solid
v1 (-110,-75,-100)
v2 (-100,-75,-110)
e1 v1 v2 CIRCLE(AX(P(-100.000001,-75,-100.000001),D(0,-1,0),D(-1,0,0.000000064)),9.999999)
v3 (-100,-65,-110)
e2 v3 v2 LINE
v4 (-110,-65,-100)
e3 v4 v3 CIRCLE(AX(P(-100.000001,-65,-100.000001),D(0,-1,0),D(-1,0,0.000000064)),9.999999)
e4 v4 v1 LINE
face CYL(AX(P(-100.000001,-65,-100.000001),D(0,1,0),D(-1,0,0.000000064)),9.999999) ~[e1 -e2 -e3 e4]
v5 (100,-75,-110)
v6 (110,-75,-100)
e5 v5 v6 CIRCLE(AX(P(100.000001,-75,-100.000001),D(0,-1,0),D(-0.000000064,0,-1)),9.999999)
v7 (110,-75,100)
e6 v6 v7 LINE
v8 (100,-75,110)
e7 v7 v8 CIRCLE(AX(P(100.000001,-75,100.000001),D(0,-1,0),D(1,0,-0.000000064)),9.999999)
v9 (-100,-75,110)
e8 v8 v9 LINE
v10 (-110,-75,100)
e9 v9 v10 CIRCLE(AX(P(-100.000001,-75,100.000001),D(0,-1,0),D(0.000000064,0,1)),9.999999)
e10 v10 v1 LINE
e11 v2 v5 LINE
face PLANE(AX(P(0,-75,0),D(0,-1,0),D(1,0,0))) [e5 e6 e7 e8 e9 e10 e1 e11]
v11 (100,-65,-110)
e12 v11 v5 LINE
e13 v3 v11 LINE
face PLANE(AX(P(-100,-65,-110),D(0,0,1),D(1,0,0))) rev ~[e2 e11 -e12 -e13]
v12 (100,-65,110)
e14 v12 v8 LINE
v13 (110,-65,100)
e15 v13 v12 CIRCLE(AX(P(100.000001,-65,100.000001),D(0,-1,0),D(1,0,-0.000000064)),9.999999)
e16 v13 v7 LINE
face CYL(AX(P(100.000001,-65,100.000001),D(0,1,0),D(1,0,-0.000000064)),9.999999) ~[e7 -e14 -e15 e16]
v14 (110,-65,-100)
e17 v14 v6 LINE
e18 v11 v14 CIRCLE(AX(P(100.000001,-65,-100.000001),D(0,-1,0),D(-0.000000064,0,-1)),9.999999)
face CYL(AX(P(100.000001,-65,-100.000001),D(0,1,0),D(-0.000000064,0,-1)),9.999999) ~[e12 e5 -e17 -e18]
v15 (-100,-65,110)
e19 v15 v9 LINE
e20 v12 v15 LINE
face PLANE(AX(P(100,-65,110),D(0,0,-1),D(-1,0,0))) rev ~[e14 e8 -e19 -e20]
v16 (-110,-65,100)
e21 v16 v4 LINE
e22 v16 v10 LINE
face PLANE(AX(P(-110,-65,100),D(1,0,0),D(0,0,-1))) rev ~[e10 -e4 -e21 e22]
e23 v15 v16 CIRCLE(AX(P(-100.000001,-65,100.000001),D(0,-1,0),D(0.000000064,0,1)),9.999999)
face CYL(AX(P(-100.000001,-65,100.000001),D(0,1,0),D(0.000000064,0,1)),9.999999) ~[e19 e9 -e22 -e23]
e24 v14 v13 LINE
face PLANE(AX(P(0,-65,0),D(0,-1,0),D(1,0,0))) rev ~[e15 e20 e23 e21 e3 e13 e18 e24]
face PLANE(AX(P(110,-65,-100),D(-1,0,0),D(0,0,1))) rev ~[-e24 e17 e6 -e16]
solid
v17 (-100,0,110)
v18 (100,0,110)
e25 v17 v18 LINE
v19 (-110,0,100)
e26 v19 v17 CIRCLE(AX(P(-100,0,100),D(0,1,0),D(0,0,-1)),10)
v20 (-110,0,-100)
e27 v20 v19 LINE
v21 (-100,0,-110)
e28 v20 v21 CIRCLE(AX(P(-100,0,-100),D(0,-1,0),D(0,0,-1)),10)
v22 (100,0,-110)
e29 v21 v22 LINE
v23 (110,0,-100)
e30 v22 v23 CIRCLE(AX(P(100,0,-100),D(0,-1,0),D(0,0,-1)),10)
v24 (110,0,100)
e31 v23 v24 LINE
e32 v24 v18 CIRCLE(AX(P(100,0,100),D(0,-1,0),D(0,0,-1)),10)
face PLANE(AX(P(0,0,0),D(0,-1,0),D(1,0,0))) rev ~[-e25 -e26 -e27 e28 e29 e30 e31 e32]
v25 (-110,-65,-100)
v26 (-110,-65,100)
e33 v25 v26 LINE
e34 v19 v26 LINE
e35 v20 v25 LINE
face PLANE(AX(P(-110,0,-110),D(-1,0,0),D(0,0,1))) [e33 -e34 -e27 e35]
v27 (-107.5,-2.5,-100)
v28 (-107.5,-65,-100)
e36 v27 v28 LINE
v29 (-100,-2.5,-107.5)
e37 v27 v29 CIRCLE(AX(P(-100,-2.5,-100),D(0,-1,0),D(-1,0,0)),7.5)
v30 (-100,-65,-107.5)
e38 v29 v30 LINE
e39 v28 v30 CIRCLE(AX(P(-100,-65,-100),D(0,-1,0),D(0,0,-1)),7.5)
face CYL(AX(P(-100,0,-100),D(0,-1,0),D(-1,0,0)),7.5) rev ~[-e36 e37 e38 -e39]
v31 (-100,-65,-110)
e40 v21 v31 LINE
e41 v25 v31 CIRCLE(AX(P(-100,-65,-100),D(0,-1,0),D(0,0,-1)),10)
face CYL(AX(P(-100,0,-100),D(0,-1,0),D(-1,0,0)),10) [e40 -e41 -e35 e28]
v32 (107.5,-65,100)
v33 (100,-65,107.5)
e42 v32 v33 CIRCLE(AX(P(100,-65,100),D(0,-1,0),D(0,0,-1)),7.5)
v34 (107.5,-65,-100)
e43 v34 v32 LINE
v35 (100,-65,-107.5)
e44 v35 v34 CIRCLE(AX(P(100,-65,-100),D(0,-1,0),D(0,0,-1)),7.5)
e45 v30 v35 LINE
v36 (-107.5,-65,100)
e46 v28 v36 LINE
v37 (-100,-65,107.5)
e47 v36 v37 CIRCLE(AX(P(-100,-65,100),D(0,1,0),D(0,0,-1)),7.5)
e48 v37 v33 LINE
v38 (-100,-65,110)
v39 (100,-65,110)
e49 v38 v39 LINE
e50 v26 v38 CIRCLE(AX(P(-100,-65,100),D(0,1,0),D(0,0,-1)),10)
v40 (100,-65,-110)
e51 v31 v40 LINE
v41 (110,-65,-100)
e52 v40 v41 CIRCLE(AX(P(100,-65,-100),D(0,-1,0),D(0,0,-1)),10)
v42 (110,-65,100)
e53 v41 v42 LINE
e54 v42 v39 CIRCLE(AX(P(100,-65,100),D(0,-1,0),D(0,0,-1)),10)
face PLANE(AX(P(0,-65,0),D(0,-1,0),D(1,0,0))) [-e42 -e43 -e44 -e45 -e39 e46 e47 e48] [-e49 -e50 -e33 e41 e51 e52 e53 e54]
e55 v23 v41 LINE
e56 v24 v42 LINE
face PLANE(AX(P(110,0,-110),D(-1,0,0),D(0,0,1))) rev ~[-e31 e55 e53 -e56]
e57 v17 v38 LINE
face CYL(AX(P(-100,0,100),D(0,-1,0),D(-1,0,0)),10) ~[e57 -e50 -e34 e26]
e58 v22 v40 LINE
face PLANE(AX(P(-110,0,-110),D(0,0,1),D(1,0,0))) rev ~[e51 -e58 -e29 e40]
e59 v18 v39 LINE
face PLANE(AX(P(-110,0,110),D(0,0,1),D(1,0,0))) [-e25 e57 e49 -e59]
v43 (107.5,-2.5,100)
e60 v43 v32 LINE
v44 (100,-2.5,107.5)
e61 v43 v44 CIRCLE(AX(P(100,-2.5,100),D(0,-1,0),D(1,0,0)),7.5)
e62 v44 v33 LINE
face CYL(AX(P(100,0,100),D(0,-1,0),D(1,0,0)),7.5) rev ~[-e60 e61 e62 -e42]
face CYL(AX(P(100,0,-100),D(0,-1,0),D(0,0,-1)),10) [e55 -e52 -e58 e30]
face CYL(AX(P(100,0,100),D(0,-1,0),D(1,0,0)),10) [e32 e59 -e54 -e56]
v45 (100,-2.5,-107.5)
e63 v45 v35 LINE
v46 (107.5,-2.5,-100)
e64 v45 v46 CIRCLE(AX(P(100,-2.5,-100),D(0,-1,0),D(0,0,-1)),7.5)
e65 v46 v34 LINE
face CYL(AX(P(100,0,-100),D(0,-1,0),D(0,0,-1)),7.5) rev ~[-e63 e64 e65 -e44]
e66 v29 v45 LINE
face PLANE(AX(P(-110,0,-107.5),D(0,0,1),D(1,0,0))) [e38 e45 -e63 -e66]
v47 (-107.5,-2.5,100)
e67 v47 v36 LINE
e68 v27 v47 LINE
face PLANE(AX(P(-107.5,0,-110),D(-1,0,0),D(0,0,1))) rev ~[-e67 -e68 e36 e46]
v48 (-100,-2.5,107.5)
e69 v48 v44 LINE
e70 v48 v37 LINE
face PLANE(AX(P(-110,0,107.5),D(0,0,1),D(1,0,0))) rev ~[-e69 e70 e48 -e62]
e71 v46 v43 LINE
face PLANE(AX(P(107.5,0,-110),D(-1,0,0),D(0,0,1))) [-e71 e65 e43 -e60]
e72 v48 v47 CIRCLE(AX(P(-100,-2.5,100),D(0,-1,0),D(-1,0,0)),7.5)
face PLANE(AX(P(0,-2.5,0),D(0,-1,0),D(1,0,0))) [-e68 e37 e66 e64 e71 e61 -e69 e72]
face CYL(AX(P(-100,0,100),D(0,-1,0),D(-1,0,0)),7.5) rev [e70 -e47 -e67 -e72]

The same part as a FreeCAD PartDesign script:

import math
import FreeCAD as App
import Part
import Sketcher
from FreeCAD import Vector


def edges_at(feature, points):
    """Names of the edges that pass closest to the given points."""
    edges = feature.Shape.Edges
    near = lambda p: min(range(len(edges)), key=lambda i: edges[i].distToShape(Part.Vertex(*p))[0])
    return sorted({f"Edge{near(p) + 1}" for p in points})


def faces_at(feature, points):
    """Names of the faces that lie closest to the given points."""
    faces = feature.Shape.Faces
    near = lambda p: min(range(len(faces)), key=lambda i: faces[i].distToShape(Part.Vertex(*p))[0])
    return sorted({f"Face{near(p) + 1}" for p in points})


def add_polygon(sketch, points):
    """Adds a closed chain of lines whose ends are joined by coincident constraints."""
    first, n = sketch.GeometryCount, len(points)
    for a, b in zip(points, points[1:] + points[:1]):
        sketch.addGeometry(Part.LineSegment(App.Vector(*a, 0), App.Vector(*b, 0)), False)
    for i in range(n):
        sketch.addConstraint(Sketcher.Constraint("Coincident", first + i, 2, first + (i + 1) % n, 1))

doc = App.newDocument("Part")
body = doc.addObject("PartDesign::Body", "Body")

sketch1 = body.newObject("Sketcher::SketchObject", "Sketch")
sketch1.AttachmentSupport = (doc.getObject("XZ_Plane"), [""])
sketch1.MapMode = "FlatFace"
add_polygon(sketch1, [(-110, 110), (-110, -110), (110, -110), (110, 110)])
sketch1.addConstraint(Sketcher.Constraint("Vertical", 0))
sketch1.addConstraint(Sketcher.Constraint("Horizontal", 1))
sketch1.addConstraint(Sketcher.Constraint("Vertical", 2))
sketch1.addConstraint(Sketcher.Constraint("Horizontal", 3))
sketch1.addConstraint(Sketcher.Constraint("Symmetric", 0, 2, 2, 2, -1, 1))
sketch1.addConstraint(Sketcher.Constraint("Equal", 3, 0))
sketch1.addConstraint(Sketcher.Constraint("DistanceX", 1, 1, 1, 2, 220.0))
pad1 = body.newObject("PartDesign::Pad", "Pad")
pad1.Profile = sketch1
pad1.Length = 65
doc.recompute()

fillet = body.newObject("PartDesign::Fillet", "Fillet")
fillet.Base = (pad1, edges_at(pad1, [
    (110, -32.5, 110),
    (-110, -32.5, 110),
    (110, -32.5, -110),
    (-110, -32.5, -110),
]))
fillet.Radius = 10
doc.recompute()

thickness = body.newObject("PartDesign::Thickness", "Thickness")
thickness.Base = (fillet, faces_at(fillet, [(0, -65, 0)]))
thickness.Value = 2.5
thickness.Reversed = True
thickness.Join = "Arc"
body2 = doc.addObject("PartDesign::Body", "Body001")

sketch2 = body2.newObject("Sketcher::SketchObject", "Sketch001")
sketch2.AttachmentSupport = (doc.getObject("XZ_Plane001"), [""])
sketch2.MapMode = "FlatFace"
sketch2.AttachmentOffset = App.Placement(Vector(0, 0, 65), App.Rotation())
sketch2.addGeometry(Part.ArcOfCircle(Part.Circle(Vector(100.000001, 100.000001, 0), Vector(0, 0, 1), 9.999999), math.radians(-0.000004), math.radians(90.000004)), False)
sketch2.addGeometry(Part.LineSegment(Vector(100, 110, 0), Vector(-100, 110, 0)), False)
sketch2.addGeometry(Part.ArcOfCircle(Part.Circle(Vector(-100.000001, 100.000001, 0), Vector(0, 0, 1), 9.999999), math.radians(89.999996), math.radians(180.000004)), False)
sketch2.addGeometry(Part.LineSegment(Vector(-110, 100, 0), Vector(-110, -100, 0)), False)
sketch2.addGeometry(Part.ArcOfCircle(Part.Circle(Vector(-100.000001, -100.000001, 0), Vector(0, 0, 1), 9.999999), math.radians(179.999996), math.radians(270.000004)), False)
sketch2.addGeometry(Part.LineSegment(Vector(-100, -110, 0), Vector(100, -110, 0)), False)
sketch2.addGeometry(Part.ArcOfCircle(Part.Circle(Vector(100.000001, -100.000001, 0), Vector(0, 0, 1), 9.999999), math.radians(-90.000004), math.radians(0.000004)), False)
sketch2.addGeometry(Part.LineSegment(Vector(110, -100, 0), Vector(110, 100, 0)), False)
sketch2.addConstraint(Sketcher.Constraint("Tangent", 0, 2, 1, 1))
sketch2.addConstraint(Sketcher.Constraint("Tangent", 1, 2, 2, 1))
sketch2.addConstraint(Sketcher.Constraint("Tangent", 2, 2, 3, 1))
sketch2.addConstraint(Sketcher.Constraint("Tangent", 3, 2, 4, 1))
sketch2.addConstraint(Sketcher.Constraint("Tangent", 4, 2, 5, 1))
sketch2.addConstraint(Sketcher.Constraint("Tangent", 5, 2, 6, 1))
sketch2.addConstraint(Sketcher.Constraint("Tangent", 6, 2, 7, 1))
sketch2.addConstraint(Sketcher.Constraint("Tangent", 7, 2, 0, 1))
sketch2.addConstraint(Sketcher.Constraint("Horizontal", 1))
sketch2.addConstraint(Sketcher.Constraint("Vertical", 3))
sketch2.addConstraint(Sketcher.Constraint("Horizontal", 5))
sketch2.addConstraint(Sketcher.Constraint("Vertical", 7))
sketch2.addConstraint(Sketcher.Constraint("Equal", 0, 2))
sketch2.addConstraint(Sketcher.Constraint("Equal", 2, 4))
sketch2.addConstraint(Sketcher.Constraint("Equal", 4, 6))
sketch2.addConstraint(Sketcher.Constraint("Symmetric", 0, 3, 4, 3, -1, 1))
sketch2.addConstraint(Sketcher.Constraint("Equal", 5, 3))
sketch2.addConstraint(Sketcher.Constraint("Radius", 0, 9.999999))
sketch2.addConstraint(Sketcher.Constraint("DistanceX", 1, 2, 1, 1, 200.0))
pad2 = body2.newObject("PartDesign::Pad", "Pad001")
pad2.Profile = sketch2
pad2.Length = 10

doc.recompute()
